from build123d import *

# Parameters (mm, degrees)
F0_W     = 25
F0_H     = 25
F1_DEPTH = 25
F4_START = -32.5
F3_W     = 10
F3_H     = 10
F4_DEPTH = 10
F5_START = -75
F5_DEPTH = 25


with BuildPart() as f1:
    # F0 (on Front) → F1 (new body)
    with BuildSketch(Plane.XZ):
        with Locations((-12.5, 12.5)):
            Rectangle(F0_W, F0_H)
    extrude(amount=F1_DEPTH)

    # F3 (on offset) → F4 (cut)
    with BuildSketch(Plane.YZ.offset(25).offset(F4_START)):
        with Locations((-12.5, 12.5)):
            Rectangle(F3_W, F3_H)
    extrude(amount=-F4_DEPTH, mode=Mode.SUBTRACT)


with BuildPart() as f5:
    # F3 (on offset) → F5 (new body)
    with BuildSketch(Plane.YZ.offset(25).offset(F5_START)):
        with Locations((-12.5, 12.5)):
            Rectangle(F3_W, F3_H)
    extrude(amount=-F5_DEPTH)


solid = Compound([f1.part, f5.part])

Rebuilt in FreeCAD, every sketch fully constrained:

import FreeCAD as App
import Part
import Sketcher
from FreeCAD import Vector

doc = App.newDocument("Part")
params = doc.addObject("Spreadsheet::Sheet", "Params")
for row, (alias, value) in enumerate([
    ("sketch1_width", "25 mm"),
    ("pad1_length", "25 mm"),
    ("sketch2_width", "10 mm"),
    ("pocket1_length", "10 mm"),
    ("sketch3_width", "10 mm"),
    ("pad2_length", "25 mm"),
], start=1):
    params.set(f"A{row}", alias)
    params.set(f"B{row}", "=" + value)
    params.setAlias(f"B{row}", alias)

body = doc.addObject("PartDesign::Body", "Body")

# Sketch on XZ plane
sketch1 = body.newObject("Sketcher::SketchObject", "Sketch")
sketch1.AttachmentSupport = (doc.getObject("XZ_Plane"), [""])
sketch1.MapMode = "FlatFace"
sketch1.addGeometry(Part.LineSegment(Vector(-25, 25, 0), Vector(-25, 0, 0)), False)
sketch1.addGeometry(Part.LineSegment(Vector(-25, 0, 0), Vector(0, 0, 0)), False)
sketch1.addGeometry(Part.LineSegment(Vector(0, 0, 0), Vector(0, 25, 0)), False)
sketch1.addGeometry(Part.LineSegment(Vector(0, 25, 0), Vector(-25, 25, 0)), False)
sketch1.addConstraint(Sketcher.Constraint("Coincident", 0, 2, 1, 1))
sketch1.addConstraint(Sketcher.Constraint("Coincident", 1, 2, 2, 1))
sketch1.addConstraint(Sketcher.Constraint("Coincident", 2, 2, 3, 1))
sketch1.addConstraint(Sketcher.Constraint("Coincident", 3, 2, 0, 1))
sketch1.addConstraint(Sketcher.Constraint("Vertical", 0))
sketch1.addConstraint(Sketcher.Constraint("Horizontal", 1))
sketch1.addConstraint(Sketcher.Constraint("Vertical", 2))
sketch1.addConstraint(Sketcher.Constraint("Horizontal", 3))
sketch1.addConstraint(Sketcher.Constraint("Coincident", 1, 2, -1, 1))
sketch1.addConstraint(Sketcher.Constraint("Equal", 3, 0))
sketch1.addConstraint(Sketcher.Constraint("DistanceX", 1, 1, 1, 2, 25.0))
sketch1.setExpression("Constraints[10]", "Params.sketch1_width")
pad1 = body.newObject("PartDesign::Pad", "Pad")
pad1.Profile = sketch1
pad1.setExpression("Length", "Params.pad1_length")

# Sketch on YZ plane
sketch2 = body.newObject("Sketcher::SketchObject", "Sketch001")
sketch2.AttachmentSupport = (doc.getObject("YZ_Plane"), [""])
sketch2.MapMode = "FlatFace"
sketch2.AttachmentOffset = App.Placement(Vector(0, 0, -7.5), App.Rotation())
sketch2.addGeometry(Part.LineSegment(Vector(-18, 18, 0), Vector(-18, 8, 0)), False)
sketch2.addGeometry(Part.LineSegment(Vector(-18, 8, 0), Vector(-8, 8, 0)), False)
sketch2.addGeometry(Part.LineSegment(Vector(-8, 8, 0), Vector(-8, 18, 0)), False)
sketch2.addGeometry(Part.LineSegment(Vector(-8, 18, 0), Vector(-18, 18, 0)), False)
sketch2.addConstraint(Sketcher.Constraint("Coincident", 0, 2, 1, 1))
sketch2.addConstraint(Sketcher.Constraint("Coincident", 1, 2, 2, 1))
sketch2.addConstraint(Sketcher.Constraint("Coincident", 2, 2, 3, 1))
sketch2.addConstraint(Sketcher.Constraint("Coincident", 3, 2, 0, 1))
sketch2.addConstraint(Sketcher.Constraint("Vertical", 0))
sketch2.addConstraint(Sketcher.Constraint("Horizontal", 1))
sketch2.addConstraint(Sketcher.Constraint("Vertical", 2))
sketch2.addConstraint(Sketcher.Constraint("Horizontal", 3))
sketch2.addConstraint(Sketcher.Constraint("Equal", 3, 0))
sketch2.addConstraint(Sketcher.Constraint("DistanceX", 1, 1, 1, 2, 10.0))
sketch2.addConstraint(Sketcher.Constraint("DistanceX", 0, 2, -1, 1, 17.5))
sketch2.addConstraint(Sketcher.Constraint("DistanceY", -1, 1, 0, 2, 7.5))
sketch2.setExpression("Constraints[9]", "Params.sketch2_width")
pocket1 = body.newObject("PartDesign::Pocket", "Pocket")
pocket1.Profile = sketch2
pocket1.setExpression("Length", "Params.pocket1_length")
body2 = doc.addObject("PartDesign::Body", "Body001")

# Sketch on YZ plane
sketch3 = body2.newObject("Sketcher::SketchObject", "Sketch002")
sketch3.AttachmentSupport = (doc.getObject("YZ_Plane001"), [""])
sketch3.MapMode = "FlatFace"
sketch3.AttachmentOffset = App.Placement(Vector(0, 0, -50), App.Rotation())
sketch3.addGeometry(Part.LineSegment(Vector(-18, 18, 0), Vector(-18, 8, 0)), False)
sketch3.addGeometry(Part.LineSegment(Vector(-18, 8, 0), Vector(-8, 8, 0)), False)
sketch3.addGeometry(Part.LineSegment(Vector(-8, 8, 0), Vector(-8, 18, 0)), False)
sketch3.addGeometry(Part.LineSegment(Vector(-8, 18, 0), Vector(-18, 18, 0)), False)
sketch3.addConstraint(Sketcher.Constraint("Coincident", 0, 2, 1, 1))
sketch3.addConstraint(Sketcher.Constraint("Coincident", 1, 2, 2, 1))
sketch3.addConstraint(Sketcher.Constraint("Coincident", 2, 2, 3, 1))
sketch3.addConstraint(Sketcher.Constraint("Coincident", 3, 2, 0, 1))
sketch3.addConstraint(Sketcher.Constraint("Vertical", 0))
sketch3.addConstraint(Sketcher.Constraint("Horizontal", 1))
sketch3.addConstraint(Sketcher.Constraint("Vertical", 2))
sketch3.addConstraint(Sketcher.Constraint("Horizontal", 3))
sketch3.addConstraint(Sketcher.Constraint("Equal", 3, 0))
sketch3.addConstraint(Sketcher.Constraint("DistanceX", 1, 1, 1, 2, 10.0))
sketch3.addConstraint(Sketcher.Constraint("DistanceX", 0, 2, -1, 1, 17.5))
sketch3.addConstraint(Sketcher.Constraint("DistanceY", -1, 1, 0, 2, 7.5))
sketch3.setExpression("Constraints[9]", "Params.sketch3_width")
pad2 = body2.newObject("PartDesign::Pad", "Pad001")
pad2.Profile = sketch3
pad2.setExpression("Length", "Params.pad2_length")
pad2.Reversed = True

doc.recompute()
